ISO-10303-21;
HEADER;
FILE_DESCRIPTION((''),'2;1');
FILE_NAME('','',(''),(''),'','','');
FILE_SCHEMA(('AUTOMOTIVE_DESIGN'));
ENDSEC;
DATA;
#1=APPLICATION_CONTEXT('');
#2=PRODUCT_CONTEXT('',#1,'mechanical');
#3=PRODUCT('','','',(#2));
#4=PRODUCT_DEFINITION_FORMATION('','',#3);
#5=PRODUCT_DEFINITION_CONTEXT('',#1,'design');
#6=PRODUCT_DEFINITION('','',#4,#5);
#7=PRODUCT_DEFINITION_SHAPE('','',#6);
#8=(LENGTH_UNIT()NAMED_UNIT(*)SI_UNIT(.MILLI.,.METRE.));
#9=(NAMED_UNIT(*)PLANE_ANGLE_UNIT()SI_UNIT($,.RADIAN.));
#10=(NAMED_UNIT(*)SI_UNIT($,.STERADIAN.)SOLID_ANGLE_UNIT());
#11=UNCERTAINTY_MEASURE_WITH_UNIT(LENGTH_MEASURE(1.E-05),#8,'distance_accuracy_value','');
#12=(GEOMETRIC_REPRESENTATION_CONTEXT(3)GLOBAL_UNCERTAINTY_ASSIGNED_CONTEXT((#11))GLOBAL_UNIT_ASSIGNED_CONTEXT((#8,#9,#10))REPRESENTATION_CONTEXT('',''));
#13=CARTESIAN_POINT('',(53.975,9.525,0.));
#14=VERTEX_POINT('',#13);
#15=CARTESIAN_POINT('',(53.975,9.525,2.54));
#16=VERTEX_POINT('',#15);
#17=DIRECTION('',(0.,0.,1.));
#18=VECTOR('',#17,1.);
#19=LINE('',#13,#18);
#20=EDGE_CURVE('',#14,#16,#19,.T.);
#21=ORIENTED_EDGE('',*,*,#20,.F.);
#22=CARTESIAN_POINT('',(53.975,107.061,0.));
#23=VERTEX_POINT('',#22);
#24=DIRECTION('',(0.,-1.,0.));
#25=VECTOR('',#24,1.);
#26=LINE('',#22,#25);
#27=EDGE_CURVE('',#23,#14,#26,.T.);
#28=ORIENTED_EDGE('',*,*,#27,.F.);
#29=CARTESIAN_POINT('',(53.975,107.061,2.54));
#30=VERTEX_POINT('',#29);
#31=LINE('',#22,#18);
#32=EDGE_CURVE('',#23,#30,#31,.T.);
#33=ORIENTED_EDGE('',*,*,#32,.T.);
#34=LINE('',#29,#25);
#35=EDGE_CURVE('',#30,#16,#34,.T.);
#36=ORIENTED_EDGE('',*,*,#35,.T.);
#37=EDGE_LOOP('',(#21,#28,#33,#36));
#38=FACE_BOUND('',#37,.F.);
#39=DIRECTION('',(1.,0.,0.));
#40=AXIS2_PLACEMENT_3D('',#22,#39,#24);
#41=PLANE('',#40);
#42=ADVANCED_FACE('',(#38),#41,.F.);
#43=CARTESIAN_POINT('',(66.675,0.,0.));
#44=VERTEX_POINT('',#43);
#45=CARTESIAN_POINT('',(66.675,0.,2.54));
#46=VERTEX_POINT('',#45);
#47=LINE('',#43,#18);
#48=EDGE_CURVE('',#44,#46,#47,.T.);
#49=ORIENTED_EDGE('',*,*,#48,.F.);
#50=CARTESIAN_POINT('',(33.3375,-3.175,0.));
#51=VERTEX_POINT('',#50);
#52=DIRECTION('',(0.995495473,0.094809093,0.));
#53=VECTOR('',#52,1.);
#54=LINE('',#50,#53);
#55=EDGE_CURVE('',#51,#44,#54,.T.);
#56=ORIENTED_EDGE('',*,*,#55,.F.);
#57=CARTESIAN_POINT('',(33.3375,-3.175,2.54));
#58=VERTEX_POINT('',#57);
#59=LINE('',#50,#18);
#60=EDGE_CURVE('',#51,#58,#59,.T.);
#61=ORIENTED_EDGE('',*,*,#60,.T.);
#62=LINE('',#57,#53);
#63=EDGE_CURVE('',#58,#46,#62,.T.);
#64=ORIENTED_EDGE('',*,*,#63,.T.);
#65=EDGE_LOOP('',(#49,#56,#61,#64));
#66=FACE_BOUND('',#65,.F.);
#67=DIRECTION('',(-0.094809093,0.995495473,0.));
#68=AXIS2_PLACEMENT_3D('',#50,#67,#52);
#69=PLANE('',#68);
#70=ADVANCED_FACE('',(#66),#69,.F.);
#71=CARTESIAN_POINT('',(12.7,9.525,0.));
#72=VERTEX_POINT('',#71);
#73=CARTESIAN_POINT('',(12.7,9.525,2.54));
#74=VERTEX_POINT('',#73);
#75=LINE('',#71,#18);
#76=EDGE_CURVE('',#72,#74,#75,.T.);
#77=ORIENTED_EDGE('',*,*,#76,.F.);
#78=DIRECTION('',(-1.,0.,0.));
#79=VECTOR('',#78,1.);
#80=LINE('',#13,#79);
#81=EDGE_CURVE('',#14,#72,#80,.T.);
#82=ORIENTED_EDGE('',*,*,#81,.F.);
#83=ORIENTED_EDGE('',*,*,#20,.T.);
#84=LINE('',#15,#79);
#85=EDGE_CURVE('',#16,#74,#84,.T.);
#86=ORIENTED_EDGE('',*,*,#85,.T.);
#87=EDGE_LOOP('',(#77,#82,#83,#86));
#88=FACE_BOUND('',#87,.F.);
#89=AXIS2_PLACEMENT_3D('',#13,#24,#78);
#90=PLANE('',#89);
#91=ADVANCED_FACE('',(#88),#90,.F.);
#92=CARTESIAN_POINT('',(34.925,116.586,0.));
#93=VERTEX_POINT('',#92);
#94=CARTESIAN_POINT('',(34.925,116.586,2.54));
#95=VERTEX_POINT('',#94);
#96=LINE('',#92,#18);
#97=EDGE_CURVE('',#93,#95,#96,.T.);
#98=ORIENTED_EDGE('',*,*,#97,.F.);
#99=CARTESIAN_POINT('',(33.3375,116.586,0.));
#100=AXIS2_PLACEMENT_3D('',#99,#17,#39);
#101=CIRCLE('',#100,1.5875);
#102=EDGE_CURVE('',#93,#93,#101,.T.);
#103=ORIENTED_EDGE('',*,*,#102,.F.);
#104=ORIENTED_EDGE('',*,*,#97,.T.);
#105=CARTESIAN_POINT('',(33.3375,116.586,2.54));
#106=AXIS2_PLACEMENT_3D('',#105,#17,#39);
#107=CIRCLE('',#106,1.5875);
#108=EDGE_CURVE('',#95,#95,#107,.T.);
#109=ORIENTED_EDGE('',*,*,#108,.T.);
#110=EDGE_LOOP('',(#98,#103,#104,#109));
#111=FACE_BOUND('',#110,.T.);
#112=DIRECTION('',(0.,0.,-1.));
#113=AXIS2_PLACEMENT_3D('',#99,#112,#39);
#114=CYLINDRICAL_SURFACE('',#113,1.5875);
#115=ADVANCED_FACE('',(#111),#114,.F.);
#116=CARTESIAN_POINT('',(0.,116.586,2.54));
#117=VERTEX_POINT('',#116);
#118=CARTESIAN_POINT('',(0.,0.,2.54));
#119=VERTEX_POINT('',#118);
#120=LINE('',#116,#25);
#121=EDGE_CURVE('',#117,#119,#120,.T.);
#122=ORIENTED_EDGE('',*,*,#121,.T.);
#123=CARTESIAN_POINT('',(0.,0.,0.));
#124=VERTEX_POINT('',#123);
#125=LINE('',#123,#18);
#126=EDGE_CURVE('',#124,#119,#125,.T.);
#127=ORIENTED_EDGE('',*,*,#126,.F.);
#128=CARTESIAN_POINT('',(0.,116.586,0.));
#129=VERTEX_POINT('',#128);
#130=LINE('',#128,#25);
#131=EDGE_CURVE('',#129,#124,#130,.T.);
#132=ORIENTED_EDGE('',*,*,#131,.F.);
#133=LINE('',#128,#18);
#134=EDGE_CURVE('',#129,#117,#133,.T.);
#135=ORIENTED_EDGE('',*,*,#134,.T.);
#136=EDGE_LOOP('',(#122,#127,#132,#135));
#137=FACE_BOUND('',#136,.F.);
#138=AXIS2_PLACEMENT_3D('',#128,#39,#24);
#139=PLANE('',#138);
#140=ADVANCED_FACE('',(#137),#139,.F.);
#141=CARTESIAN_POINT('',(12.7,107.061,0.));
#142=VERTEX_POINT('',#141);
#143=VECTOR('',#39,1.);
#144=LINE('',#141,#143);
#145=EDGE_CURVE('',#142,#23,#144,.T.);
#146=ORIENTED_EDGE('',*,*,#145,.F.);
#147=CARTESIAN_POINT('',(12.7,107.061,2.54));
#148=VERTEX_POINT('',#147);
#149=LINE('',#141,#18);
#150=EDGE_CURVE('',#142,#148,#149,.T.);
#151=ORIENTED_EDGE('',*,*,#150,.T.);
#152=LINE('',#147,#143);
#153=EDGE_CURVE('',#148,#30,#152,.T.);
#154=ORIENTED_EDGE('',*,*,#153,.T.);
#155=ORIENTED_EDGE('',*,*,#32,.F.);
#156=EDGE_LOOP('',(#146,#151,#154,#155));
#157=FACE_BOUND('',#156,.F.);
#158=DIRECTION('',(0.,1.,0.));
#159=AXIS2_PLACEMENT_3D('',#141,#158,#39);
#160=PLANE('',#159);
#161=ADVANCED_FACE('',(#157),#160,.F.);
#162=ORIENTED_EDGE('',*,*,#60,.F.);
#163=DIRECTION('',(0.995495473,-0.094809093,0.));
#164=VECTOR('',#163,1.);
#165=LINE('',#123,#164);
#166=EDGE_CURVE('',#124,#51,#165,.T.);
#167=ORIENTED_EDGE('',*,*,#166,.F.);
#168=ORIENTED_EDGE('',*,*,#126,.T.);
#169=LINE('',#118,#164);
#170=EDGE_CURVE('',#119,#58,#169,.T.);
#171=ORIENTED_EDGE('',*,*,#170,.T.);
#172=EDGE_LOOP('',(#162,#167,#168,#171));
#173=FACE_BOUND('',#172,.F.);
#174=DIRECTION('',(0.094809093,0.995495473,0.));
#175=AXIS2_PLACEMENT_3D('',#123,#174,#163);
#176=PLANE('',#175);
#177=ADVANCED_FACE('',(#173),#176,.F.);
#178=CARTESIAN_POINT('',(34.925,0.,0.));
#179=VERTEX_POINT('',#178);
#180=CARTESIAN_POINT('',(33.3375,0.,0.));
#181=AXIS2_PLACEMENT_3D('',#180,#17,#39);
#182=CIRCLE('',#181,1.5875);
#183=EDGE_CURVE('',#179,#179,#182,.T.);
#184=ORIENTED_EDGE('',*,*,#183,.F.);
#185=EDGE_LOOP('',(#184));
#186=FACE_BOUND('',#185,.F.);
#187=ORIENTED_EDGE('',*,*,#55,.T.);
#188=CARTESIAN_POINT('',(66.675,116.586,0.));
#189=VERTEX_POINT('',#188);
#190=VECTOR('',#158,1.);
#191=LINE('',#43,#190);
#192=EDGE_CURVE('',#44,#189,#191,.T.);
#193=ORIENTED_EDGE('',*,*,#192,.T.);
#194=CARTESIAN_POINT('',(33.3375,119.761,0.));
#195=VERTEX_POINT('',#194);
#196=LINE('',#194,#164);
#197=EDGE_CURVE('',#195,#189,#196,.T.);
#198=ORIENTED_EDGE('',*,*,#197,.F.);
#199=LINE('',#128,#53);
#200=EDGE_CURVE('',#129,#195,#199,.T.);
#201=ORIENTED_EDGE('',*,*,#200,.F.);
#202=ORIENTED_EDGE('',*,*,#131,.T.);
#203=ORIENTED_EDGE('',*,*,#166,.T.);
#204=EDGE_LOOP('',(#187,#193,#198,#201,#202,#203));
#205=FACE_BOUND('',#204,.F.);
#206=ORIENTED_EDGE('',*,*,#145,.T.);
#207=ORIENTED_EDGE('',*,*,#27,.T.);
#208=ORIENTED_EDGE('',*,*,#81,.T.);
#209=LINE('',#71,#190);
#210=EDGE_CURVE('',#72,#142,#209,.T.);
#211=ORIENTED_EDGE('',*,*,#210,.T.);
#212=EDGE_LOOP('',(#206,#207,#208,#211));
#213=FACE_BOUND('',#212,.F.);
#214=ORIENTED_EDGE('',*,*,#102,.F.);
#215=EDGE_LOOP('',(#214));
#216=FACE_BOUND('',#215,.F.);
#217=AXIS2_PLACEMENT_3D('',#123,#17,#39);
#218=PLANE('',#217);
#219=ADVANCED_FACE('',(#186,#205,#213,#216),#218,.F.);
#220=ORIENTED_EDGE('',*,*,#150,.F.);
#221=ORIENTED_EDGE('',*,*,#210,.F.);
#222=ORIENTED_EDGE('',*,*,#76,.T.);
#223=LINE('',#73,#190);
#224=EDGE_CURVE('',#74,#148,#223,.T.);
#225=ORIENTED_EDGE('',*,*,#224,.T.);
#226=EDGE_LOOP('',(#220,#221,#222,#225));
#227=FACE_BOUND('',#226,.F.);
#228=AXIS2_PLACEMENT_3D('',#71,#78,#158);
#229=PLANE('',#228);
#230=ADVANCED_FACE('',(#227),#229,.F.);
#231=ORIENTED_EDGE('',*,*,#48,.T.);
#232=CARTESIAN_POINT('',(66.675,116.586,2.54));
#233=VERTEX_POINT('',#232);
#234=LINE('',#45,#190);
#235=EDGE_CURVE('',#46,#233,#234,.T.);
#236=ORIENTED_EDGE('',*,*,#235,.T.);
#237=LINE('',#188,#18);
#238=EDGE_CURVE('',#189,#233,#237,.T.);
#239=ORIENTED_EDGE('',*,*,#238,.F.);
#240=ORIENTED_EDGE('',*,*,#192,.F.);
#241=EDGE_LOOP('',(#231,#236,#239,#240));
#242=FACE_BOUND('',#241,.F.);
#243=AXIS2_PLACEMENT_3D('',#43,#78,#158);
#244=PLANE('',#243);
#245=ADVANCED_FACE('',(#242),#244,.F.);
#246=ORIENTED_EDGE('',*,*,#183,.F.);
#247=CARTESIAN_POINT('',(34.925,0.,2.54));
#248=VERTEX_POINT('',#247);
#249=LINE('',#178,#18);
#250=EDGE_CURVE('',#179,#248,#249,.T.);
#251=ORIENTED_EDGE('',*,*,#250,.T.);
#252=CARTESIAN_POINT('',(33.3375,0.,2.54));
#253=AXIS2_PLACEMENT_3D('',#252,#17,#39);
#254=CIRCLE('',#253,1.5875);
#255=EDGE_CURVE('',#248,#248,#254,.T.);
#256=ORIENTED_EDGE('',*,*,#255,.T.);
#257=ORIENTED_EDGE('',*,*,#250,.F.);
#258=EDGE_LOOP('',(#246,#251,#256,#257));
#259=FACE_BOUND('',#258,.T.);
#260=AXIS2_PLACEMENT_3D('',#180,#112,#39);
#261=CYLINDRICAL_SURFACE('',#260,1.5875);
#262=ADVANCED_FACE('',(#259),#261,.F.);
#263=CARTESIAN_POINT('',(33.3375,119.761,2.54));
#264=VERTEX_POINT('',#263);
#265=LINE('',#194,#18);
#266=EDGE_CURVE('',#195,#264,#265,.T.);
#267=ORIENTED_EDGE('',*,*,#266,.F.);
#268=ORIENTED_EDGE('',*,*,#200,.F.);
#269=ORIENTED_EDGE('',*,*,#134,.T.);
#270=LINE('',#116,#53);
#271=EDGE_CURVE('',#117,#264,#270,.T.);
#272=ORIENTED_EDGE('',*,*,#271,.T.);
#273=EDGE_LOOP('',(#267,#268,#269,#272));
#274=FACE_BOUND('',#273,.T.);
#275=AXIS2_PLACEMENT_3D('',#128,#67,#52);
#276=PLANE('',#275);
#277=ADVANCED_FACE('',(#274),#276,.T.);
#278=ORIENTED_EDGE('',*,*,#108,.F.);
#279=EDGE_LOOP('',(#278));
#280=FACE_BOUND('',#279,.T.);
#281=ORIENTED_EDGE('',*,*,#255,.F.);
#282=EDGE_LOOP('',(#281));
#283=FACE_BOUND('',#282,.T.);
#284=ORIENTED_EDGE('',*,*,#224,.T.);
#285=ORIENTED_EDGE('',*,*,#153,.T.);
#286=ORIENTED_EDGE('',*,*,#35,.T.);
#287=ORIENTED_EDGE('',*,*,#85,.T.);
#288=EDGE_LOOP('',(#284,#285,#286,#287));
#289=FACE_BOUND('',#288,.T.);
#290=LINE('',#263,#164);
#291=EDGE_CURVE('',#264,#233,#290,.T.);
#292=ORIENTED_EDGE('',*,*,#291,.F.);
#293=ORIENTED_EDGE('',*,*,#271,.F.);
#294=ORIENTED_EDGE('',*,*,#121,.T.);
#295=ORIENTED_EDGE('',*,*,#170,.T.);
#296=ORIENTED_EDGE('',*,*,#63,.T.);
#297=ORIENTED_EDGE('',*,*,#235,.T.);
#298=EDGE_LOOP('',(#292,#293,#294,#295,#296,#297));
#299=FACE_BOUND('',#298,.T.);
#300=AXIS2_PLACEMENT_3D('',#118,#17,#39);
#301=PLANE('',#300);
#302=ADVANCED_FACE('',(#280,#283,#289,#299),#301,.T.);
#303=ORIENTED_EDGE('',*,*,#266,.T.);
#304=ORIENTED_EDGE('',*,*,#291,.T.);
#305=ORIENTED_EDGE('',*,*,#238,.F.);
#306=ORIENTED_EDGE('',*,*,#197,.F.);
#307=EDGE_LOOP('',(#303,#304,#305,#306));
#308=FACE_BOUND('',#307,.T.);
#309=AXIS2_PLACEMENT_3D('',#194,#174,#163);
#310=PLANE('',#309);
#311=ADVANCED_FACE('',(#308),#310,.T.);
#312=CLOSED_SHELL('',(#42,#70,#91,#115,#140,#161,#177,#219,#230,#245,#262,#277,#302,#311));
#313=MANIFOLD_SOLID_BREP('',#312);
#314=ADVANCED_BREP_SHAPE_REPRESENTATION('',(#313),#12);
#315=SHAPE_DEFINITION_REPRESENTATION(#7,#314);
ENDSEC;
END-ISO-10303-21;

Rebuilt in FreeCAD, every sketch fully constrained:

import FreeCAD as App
import Part
import Sketcher
Q = App.Units.Quantity

doc = App.newDocument("Part")
body = doc.addObject("PartDesign::Body", "Body")

# Sketch on XY plane
sketch1 = doc.addObject("Sketcher::SketchObject", "Sketch")
body.addObject(sketch1)
sketch1.AttachmentSupport = (doc.XY_Plane, [""])
sketch1.MapMode = "FlatFace"
sketch1.addGeometry([
    Part.LineSegment(App.Vector(33.3375, -3.175, 0), App.Vector(66.675, 0, 0)),  # 0
    Part.LineSegment(App.Vector(66.675, 0, 0), App.Vector(66.675, 116.586, 0)),  # 1
    Part.LineSegment(App.Vector(66.675, 116.586, 0), App.Vector(33.3375, 119.761, 0)),  # 2
    Part.LineSegment(App.Vector(33.3375, 119.761, 0), App.Vector(0, 116.586, 0)),  # 3
    Part.LineSegment(App.Vector(0, 116.586, 0), App.Vector(0, 0, 0)),  # 4
    Part.LineSegment(App.Vector(0, 0, 0), App.Vector(33.3375, -3.175, 0)),  # 5
    Part.Circle(App.Vector(33.3375, 0, 0), App.Vector(0, 0, 1), 1.5875),  # 6
    Part.Circle(App.Vector(33.3375, 116.586, 0), App.Vector(0, 0, 1), 1.5875),  # 7
    Part.LineSegment(App.Vector(12.7, 9.525, 0), App.Vector(12.7, 107.061, 0)),  # 8
    Part.LineSegment(App.Vector(12.7, 107.061, 0), App.Vector(53.975, 107.061, 0)),  # 9
    Part.LineSegment(App.Vector(53.975, 107.061, 0), App.Vector(53.975, 9.525, 0)),  # 10
    Part.LineSegment(App.Vector(53.975, 9.525, 0), App.Vector(12.7, 9.525, 0)),  # 11
], False)
sketch1.addConstraint([
    Sketcher.Constraint("Coincident", 0, 2, 1, 1),
    Sketcher.Constraint("Coincident", 1, 2, 2, 1),
    Sketcher.Constraint("Coincident", 2, 2, 3, 1),
    Sketcher.Constraint("Coincident", 3, 2, 4, 1),
    Sketcher.Constraint("Coincident", 4, 2, 5, 1),
    Sketcher.Constraint("Coincident", 5, 2, 0, 1),
    Sketcher.Constraint("Coincident", 8, 2, 9, 1),
    Sketcher.Constraint("Coincident", 9, 2, 10, 1),
    Sketcher.Constraint("Coincident", 10, 2, 11, 1),
    Sketcher.Constraint("Coincident", 11, 2, 8, 1),
    Sketcher.Constraint("Vertical", 1),
    Sketcher.Constraint("Vertical", 4),
    Sketcher.Constraint("Vertical", 8),
    Sketcher.Constraint("Horizontal", 9),
    Sketcher.Constraint("Vertical", 10),
    Sketcher.Constraint("Horizontal", 11),
    Sketcher.Constraint("Coincident", 4, 2, -1, 1),
    Sketcher.Constraint("Equal", 6, 7),
    Sketcher.Constraint("PointOnObject", 6, 3, -1),
    Sketcher.Constraint("PointOnObject", 0, 2, -1),
    Sketcher.Constraint("Parallel", 0, 3),
    Sketcher.Constraint("Parallel", 2, 5),
    Sketcher.Constraint("Horizontal", 7, 3, 1, 2),
    Sketcher.Constraint("Horizontal", 1, 2, 3, 2),
    Sketcher.Constraint("Vertical", 6, 3, 7, 3),
    Sketcher.Constraint("Vertical", 7, 3, 2, 2),
    Sketcher.Constraint("Vertical", 2, 2, 5, 2),
    Sketcher.Constraint("DistanceY", 1, 1, 1, 2, Q("4.59 in")),
    Sketcher.Constraint("DistanceX", -1, 1, 8, 2, Q("0.5 in")),
    Sketcher.Constraint("DistanceY", 8, 2, 2, 2, Q("0.5 in")),
    Sketcher.Constraint("DistanceX", 9, 2, 1, 2, Q("0.5 in")),
    Sketcher.Constraint("DistanceY", 5, 2, 10, 2, Q("0.5 in")),
    Sketcher.Constraint("Diameter", 6, Q("0.125 in")),
    Sketcher.Constraint("DistanceX", -1, 1, 0, 2, Q("2.625 in")),
    Sketcher.Constraint("DistanceY", -1, 1, 10, 2, Q("0.375 in")),
])
pad1 = doc.addObject("PartDesign::Pad", "Pad")
body.addObject(pad1)
pad1.Profile = sketch1
pad1.Length = Q("0.1 in")

doc.recompute()
